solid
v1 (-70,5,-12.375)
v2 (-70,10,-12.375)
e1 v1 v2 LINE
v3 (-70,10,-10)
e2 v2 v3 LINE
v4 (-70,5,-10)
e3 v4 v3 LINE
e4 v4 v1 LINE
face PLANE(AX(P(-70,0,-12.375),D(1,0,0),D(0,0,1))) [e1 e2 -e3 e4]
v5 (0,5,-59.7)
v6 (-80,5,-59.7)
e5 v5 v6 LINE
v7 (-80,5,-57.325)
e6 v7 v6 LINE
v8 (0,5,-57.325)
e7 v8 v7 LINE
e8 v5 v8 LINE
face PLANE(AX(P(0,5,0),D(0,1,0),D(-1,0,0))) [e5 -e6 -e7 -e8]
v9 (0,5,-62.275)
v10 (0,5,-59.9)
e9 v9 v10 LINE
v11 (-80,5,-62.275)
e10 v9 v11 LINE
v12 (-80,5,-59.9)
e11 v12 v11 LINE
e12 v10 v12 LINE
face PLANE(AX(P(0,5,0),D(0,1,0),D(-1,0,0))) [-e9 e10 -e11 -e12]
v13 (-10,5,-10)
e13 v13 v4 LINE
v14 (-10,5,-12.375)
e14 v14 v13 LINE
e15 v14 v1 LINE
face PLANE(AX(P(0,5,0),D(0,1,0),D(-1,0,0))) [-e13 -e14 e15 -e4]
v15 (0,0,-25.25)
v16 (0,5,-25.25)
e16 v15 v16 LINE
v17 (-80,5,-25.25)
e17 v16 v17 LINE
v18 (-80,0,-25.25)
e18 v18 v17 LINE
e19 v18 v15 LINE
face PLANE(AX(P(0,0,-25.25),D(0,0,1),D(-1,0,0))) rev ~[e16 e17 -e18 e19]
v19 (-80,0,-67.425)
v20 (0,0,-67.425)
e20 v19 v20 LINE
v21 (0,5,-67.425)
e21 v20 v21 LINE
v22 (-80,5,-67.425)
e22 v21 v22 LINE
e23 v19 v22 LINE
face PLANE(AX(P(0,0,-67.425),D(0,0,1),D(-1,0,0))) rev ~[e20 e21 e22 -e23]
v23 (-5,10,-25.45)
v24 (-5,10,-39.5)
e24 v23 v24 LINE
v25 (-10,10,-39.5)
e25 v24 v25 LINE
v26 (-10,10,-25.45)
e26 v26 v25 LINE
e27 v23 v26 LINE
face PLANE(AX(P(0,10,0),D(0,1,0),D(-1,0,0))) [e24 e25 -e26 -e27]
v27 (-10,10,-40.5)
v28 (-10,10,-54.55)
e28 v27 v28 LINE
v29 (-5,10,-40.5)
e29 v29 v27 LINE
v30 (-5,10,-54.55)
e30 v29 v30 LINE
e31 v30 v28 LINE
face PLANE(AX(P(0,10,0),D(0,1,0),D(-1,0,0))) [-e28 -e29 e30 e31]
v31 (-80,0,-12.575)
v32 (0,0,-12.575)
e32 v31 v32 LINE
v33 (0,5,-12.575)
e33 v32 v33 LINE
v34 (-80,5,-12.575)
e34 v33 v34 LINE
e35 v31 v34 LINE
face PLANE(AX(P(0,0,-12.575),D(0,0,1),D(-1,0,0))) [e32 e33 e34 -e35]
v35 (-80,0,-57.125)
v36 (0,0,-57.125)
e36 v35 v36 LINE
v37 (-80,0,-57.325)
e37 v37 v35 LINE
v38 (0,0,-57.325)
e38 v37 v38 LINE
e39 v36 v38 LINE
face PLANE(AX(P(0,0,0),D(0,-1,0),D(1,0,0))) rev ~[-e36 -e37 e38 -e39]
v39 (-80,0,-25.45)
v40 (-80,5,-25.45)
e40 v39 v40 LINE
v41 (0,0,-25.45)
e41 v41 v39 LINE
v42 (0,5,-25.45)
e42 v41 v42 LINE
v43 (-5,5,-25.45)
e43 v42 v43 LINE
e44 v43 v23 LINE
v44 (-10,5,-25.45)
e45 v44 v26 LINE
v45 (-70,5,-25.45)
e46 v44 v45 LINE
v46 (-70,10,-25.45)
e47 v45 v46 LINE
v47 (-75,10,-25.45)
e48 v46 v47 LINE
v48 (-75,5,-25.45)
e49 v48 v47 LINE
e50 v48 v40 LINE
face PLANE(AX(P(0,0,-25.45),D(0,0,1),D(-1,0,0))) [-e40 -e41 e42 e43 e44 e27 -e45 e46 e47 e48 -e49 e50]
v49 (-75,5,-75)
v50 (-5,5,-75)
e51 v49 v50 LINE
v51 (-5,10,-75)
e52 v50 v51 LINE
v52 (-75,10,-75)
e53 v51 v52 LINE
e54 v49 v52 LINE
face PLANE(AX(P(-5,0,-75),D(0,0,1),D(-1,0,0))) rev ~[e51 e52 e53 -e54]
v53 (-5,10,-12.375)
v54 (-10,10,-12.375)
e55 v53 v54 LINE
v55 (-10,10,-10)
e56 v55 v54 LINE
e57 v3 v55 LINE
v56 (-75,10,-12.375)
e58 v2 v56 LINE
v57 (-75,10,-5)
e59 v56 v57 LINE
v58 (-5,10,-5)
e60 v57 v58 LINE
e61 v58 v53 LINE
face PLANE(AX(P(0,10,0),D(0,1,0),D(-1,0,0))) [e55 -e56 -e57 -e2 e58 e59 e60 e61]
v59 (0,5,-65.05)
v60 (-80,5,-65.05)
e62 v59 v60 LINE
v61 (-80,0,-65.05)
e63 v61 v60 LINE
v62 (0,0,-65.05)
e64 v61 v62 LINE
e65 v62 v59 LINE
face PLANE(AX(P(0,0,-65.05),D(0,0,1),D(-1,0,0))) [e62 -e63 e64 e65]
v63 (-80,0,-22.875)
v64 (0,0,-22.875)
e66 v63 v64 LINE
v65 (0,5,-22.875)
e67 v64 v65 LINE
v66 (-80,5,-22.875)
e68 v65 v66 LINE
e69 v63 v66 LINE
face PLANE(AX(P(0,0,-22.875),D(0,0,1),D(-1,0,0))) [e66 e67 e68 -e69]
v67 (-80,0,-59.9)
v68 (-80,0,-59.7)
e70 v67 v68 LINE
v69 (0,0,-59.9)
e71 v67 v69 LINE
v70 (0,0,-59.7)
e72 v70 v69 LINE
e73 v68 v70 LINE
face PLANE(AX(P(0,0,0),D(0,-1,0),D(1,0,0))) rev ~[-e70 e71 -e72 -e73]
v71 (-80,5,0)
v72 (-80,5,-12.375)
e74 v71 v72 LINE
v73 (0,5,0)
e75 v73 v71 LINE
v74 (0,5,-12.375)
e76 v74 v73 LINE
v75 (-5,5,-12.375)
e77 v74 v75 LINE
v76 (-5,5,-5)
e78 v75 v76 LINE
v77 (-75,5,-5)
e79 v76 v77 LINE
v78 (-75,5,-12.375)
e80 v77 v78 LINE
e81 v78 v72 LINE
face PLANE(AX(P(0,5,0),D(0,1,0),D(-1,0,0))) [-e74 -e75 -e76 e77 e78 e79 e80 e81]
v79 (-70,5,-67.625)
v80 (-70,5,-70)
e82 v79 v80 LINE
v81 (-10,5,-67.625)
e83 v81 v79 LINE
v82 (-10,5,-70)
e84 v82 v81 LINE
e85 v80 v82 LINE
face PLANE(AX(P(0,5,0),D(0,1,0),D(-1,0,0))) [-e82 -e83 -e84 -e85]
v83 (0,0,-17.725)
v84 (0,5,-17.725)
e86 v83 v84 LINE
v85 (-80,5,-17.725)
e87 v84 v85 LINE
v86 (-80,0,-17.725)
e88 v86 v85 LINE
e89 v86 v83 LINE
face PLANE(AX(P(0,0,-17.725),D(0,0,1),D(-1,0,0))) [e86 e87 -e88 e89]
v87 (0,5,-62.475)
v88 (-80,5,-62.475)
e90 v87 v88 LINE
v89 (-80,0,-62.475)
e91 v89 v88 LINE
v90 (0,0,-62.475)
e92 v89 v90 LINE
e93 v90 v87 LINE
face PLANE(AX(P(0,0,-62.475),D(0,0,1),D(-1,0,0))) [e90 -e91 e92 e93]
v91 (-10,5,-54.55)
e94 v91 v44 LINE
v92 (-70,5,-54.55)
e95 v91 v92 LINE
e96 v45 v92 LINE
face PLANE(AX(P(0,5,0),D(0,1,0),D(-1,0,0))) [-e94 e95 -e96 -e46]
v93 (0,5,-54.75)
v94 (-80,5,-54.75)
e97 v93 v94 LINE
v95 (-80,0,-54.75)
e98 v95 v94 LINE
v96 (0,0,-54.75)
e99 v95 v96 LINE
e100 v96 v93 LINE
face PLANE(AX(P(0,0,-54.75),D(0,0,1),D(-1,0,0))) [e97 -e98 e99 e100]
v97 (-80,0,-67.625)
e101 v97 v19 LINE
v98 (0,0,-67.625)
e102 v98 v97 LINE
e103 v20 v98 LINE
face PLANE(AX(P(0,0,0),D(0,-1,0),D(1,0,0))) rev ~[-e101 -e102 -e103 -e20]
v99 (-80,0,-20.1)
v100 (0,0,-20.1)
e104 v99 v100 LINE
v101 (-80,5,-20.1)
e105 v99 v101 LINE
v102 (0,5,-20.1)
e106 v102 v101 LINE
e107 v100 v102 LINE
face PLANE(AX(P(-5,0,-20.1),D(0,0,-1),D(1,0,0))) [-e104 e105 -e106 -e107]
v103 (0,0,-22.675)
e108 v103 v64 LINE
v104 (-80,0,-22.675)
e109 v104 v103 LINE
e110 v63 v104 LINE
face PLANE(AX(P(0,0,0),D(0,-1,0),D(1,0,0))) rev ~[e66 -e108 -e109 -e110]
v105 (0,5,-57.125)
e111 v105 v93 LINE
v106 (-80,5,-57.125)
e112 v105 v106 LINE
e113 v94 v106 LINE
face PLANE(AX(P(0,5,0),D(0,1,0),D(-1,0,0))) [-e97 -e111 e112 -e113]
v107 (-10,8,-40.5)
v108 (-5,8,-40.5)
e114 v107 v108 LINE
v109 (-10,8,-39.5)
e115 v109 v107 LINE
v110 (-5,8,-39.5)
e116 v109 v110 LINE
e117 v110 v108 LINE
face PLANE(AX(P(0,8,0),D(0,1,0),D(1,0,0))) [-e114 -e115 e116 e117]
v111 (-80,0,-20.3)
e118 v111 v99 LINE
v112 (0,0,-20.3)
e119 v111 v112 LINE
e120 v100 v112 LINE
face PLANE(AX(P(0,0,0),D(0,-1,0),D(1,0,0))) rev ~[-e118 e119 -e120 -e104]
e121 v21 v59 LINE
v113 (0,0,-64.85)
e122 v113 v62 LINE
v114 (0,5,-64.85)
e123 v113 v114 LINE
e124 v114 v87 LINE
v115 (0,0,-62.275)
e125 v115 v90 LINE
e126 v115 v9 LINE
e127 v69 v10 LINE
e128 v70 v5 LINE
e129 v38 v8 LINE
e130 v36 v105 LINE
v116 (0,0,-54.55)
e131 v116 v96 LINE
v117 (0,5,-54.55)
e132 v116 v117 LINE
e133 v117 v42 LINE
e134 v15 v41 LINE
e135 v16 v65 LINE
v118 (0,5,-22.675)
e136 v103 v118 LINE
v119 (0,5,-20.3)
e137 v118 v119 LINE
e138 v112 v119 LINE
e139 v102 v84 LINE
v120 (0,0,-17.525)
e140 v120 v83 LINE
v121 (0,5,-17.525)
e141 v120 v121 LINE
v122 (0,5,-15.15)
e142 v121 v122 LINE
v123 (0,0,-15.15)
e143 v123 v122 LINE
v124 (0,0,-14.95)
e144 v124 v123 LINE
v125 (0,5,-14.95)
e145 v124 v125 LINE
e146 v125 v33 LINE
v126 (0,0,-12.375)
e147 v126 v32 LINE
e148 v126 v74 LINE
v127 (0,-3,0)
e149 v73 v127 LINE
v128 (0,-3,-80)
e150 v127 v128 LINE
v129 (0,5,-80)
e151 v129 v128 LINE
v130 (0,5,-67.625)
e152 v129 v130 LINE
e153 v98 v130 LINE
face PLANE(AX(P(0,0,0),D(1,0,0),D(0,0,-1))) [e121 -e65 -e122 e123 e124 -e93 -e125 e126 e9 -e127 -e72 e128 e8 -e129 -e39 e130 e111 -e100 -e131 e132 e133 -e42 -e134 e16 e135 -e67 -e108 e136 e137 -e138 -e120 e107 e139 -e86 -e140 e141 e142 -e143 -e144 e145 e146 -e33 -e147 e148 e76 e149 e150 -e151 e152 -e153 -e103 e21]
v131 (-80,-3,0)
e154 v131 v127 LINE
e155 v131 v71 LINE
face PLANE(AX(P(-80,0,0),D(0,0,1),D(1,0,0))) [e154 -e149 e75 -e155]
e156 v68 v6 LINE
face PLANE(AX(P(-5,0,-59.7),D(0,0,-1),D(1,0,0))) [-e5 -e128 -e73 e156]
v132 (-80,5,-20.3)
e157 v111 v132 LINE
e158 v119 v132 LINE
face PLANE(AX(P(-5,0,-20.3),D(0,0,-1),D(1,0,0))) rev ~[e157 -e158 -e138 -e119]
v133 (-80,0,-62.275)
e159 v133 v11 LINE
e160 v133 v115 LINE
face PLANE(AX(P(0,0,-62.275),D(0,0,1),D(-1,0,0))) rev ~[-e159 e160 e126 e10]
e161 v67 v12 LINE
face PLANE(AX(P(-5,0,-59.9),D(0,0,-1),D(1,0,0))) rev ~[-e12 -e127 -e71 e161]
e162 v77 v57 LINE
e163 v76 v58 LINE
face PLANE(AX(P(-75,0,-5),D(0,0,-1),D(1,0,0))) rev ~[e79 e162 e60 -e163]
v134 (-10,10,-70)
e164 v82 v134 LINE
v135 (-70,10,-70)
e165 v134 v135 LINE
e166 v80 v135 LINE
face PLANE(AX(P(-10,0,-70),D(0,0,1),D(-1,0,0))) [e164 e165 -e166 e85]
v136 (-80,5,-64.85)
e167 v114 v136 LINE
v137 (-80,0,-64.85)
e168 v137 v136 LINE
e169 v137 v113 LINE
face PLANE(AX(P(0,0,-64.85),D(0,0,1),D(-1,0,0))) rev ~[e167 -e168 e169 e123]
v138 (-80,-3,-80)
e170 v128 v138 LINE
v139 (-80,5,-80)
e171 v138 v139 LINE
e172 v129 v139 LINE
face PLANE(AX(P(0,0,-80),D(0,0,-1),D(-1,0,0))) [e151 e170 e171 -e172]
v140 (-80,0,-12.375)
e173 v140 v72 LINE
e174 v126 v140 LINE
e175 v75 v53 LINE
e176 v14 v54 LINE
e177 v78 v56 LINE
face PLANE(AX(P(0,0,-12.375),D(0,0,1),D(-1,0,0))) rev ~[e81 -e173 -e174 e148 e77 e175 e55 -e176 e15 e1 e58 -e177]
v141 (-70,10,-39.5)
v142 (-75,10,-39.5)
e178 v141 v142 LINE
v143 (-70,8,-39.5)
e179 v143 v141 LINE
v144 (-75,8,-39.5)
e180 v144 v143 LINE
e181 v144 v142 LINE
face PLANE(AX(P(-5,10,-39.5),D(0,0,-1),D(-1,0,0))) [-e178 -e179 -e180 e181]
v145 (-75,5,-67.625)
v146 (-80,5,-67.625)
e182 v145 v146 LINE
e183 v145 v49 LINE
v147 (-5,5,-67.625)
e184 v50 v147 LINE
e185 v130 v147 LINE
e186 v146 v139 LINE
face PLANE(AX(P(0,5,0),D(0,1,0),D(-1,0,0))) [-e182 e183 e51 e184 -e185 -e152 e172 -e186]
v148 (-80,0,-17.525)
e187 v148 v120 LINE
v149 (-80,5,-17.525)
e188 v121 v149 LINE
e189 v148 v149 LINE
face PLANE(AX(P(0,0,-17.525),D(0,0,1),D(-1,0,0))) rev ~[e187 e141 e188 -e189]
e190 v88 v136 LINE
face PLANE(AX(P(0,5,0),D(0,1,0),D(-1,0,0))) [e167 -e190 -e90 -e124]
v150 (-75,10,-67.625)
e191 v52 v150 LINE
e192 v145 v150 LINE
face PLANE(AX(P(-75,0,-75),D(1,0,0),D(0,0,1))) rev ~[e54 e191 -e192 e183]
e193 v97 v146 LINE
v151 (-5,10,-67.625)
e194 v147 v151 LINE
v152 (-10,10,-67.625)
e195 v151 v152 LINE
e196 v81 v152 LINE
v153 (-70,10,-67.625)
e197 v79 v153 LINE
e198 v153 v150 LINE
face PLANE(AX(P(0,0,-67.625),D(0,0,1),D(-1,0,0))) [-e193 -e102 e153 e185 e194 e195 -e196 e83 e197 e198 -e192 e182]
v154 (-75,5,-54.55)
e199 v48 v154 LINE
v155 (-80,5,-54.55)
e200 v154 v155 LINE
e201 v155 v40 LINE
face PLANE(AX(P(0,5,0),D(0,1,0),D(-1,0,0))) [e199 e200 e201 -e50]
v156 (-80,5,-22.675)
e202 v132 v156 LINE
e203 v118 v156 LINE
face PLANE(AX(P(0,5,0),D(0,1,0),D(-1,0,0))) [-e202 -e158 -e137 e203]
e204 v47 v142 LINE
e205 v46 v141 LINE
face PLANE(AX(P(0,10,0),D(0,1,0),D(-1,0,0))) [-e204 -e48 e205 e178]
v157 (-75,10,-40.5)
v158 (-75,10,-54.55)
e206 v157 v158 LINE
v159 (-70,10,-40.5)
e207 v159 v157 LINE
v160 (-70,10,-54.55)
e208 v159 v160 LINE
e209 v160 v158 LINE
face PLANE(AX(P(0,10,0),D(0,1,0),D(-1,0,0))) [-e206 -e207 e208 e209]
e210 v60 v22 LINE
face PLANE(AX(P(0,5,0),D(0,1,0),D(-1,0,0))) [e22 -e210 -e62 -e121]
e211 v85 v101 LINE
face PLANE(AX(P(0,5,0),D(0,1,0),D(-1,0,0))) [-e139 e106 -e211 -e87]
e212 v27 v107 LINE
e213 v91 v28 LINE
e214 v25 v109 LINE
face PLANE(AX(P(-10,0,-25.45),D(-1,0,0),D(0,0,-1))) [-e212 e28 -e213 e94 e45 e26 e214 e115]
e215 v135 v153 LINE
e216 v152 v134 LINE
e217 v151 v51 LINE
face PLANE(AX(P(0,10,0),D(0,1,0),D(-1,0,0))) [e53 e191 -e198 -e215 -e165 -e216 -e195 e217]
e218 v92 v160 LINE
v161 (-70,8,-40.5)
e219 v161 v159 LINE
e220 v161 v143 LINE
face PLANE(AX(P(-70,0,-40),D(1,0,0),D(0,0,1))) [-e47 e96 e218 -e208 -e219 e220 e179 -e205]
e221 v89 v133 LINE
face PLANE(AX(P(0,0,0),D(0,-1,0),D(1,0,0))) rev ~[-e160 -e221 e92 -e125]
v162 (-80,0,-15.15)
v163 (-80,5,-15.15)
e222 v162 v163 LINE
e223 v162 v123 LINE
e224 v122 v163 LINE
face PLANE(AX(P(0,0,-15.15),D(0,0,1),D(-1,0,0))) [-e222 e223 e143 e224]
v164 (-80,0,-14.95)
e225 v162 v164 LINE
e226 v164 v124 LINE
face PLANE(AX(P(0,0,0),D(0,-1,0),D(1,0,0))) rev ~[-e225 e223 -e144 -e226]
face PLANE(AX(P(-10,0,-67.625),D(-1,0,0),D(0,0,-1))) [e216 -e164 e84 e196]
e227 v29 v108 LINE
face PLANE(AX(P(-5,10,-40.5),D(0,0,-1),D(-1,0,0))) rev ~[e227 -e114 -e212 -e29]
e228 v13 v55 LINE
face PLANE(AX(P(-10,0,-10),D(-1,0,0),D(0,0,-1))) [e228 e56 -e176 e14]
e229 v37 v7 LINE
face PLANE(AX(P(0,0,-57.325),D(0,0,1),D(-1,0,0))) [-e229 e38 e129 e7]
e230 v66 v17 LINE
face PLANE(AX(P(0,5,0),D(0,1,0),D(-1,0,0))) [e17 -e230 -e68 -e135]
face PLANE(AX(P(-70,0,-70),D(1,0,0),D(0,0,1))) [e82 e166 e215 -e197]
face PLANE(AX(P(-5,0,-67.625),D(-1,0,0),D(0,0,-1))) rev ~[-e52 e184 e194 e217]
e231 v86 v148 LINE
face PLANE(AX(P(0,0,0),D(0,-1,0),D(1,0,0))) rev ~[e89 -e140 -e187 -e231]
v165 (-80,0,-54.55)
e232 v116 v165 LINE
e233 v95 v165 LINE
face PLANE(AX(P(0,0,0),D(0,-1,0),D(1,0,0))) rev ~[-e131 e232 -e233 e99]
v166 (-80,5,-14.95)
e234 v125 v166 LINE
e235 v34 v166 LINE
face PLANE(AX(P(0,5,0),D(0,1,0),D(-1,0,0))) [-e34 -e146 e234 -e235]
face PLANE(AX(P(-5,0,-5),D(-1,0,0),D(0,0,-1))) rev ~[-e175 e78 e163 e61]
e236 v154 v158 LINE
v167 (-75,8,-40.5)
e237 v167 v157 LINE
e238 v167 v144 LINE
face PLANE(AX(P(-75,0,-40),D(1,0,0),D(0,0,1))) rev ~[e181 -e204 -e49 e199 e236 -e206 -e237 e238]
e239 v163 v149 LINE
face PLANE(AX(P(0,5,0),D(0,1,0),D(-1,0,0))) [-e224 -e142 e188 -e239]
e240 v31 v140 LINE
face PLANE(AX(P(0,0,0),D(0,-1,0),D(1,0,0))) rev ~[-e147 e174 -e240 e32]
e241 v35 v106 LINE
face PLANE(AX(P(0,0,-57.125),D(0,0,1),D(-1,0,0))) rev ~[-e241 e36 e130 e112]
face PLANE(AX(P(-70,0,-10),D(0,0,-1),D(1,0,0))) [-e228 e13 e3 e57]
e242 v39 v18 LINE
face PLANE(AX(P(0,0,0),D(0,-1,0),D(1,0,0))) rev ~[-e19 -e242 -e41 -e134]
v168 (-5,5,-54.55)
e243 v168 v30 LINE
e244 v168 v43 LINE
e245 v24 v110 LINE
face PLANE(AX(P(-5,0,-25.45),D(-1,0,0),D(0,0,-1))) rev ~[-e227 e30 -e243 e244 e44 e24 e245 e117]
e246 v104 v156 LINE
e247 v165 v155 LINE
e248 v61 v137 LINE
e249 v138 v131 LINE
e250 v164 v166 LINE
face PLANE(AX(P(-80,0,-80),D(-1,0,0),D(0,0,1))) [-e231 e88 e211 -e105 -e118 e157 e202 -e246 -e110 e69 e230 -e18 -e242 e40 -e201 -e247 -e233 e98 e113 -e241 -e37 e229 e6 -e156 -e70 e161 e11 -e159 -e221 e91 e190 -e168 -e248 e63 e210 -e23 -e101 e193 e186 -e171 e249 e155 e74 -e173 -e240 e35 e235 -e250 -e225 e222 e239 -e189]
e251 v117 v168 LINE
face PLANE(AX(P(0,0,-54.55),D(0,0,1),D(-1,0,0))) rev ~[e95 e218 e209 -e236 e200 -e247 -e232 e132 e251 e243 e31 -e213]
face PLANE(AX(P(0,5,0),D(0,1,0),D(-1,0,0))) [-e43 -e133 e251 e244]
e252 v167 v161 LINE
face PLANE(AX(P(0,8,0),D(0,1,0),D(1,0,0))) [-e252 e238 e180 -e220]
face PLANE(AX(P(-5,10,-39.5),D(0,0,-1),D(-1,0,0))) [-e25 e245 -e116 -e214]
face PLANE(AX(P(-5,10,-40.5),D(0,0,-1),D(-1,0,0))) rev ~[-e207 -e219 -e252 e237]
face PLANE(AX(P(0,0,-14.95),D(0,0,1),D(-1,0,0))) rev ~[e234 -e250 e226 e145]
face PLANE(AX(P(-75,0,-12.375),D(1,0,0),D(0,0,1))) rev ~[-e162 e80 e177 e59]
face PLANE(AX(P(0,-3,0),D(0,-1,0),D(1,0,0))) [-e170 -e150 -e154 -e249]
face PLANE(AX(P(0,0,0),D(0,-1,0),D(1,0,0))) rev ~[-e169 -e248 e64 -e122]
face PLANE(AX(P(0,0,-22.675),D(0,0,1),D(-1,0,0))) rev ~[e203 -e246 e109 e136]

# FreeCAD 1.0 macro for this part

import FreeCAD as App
import Part
import Sketcher

V = App.Vector
Q = App.Units.Quantity

doc = App.newDocument("Part")
params = doc.addObject("Spreadsheet::Sheet", "Params")
for row, (alias, value) in enumerate([
    ("sketch1_width", "80 mm"),
    ("sketch1_height", "29.1 mm"),
    ("pad1_length", "5 mm"),
    ("sketch2_width", "80 mm"),
    ("pad2_length", "3 mm"),
    ("sketch3_width", "5 mm"),
    ("sketch3_width2", "60 mm"),
    ("sketch3_height", "29.1 mm"),
    ("pad3_length", "10 mm"),
    ("sketch4_height", "1 mm"),
    ("pocket1_length", "2 mm"),
], start=1):
    params.set(f"A{row}", alias)
    params.set(f"B{row}", "=" + value)
    params.setAlias(f"B{row}", alias)

body = doc.addObject("PartDesign::Body", "Body")
body.AllowCompound = True

# Sketch on XZ plane
sketch1 = body.newObject("Sketcher::SketchObject", "Sketch")
sketch1.AttachmentSupport = (doc.getObject("XZ_Plane"), [""])
sketch1.MapMode = "FlatFace"
sketch1.addGeometry(Part.LineSegment(V(0, 0, 0), V(0, -12.4, 0)), False)
sketch1.addGeometry(Part.LineSegment(V(0, -12.4, 0), V(-80, -12.4, 0)), False)
sketch1.addGeometry(Part.LineSegment(V(-80, -12.4, 0), V(-80, 0, 0)), False)
sketch1.addGeometry(Part.LineSegment(V(-80, 0, 0), V(0, 0, 0)), False)
sketch1.addGeometry(Part.LineSegment(V(0, -12.6, 0), V(0, -14.9, 0)), False)
sketch1.addGeometry(Part.LineSegment(V(0, -14.9, 0), V(-80, -14.9, 0)), False)
sketch1.addGeometry(Part.LineSegment(V(-80, -14.9, 0), V(-80, -12.6, 0)), False)
sketch1.addGeometry(Part.LineSegment(V(-80, -12.6, 0), V(0, -12.6, 0)), False)
sketch1.addGeometry(Part.LineSegment(V(0, -15.2, 0), V(0, -17.5, 0)), False)
sketch1.addGeometry(Part.LineSegment(V(0, -17.5, 0), V(-80, -17.5, 0)), False)
sketch1.addGeometry(Part.LineSegment(V(-80, -17.5, 0), V(-80, -15.2, 0)), False)
sketch1.addGeometry(Part.LineSegment(V(-80, -15.2, 0), V(0, -15.2, 0)), False)
sketch1.addGeometry(Part.LineSegment(V(0, -17.7, 0), V(0, -20.1, 0)), False)
sketch1.addGeometry(Part.LineSegment(V(0, -20.1, 0), V(-80, -20.1, 0)), False)
sketch1.addGeometry(Part.LineSegment(V(-80, -20.1, 0), V(-80, -17.7, 0)), False)
sketch1.addGeometry(Part.LineSegment(V(-80, -17.7, 0), V(0, -17.7, 0)), False)
sketch1.addGeometry(Part.LineSegment(V(0, -20.3, 0), V(0, -22.7, 0)), False)
sketch1.addGeometry(Part.LineSegment(V(0, -22.7, 0), V(-80, -22.7, 0)), False)
sketch1.addGeometry(Part.LineSegment(V(-80, -22.7, 0), V(-80, -20.3, 0)), False)
sketch1.addGeometry(Part.LineSegment(V(-80, -20.3, 0), V(0, -20.3, 0)), False)
sketch1.addGeometry(Part.LineSegment(V(0, -22.9, 0), V(0, -25.2, 0)), False)
sketch1.addGeometry(Part.LineSegment(V(0, -25.2, 0), V(-80, -25.2, 0)), False)
sketch1.addGeometry(Part.LineSegment(V(-80, -25.2, 0), V(-80, -22.9, 0)), False)
sketch1.addGeometry(Part.LineSegment(V(-80, -22.9, 0), V(0, -22.9, 0)), False)
sketch1.addGeometry(Part.LineSegment(V(0, -25.4, 0), V(0, -54.5, 0)), False)
sketch1.addGeometry(Part.LineSegment(V(0, -54.5, 0), V(-80, -54.5, 0)), False)
sketch1.addGeometry(Part.LineSegment(V(-80, -54.5, 0), V(-80, -25.4, 0)), False)
sketch1.addGeometry(Part.LineSegment(V(-80, -25.4, 0), V(0, -25.4, 0)), False)
sketch1.addGeometry(Part.LineSegment(V(0, -54.8, 0), V(0, -57.1, 0)), False)
sketch1.addGeometry(Part.LineSegment(V(0, -57.1, 0), V(-80, -57.1, 0)), False)
sketch1.addGeometry(Part.LineSegment(V(-80, -57.1, 0), V(-80, -54.8, 0)), False)
sketch1.addGeometry(Part.LineSegment(V(-80, -54.8, 0), V(0, -54.8, 0)), False)
sketch1.addGeometry(Part.LineSegment(V(0, -57.3, 0), V(0, -59.7, 0)), False)
sketch1.addGeometry(Part.LineSegment(V(0, -59.7, 0), V(-80, -59.7, 0)), False)
sketch1.addGeometry(Part.LineSegment(V(-80, -59.7, 0), V(-80, -57.3, 0)), False)
sketch1.addGeometry(Part.LineSegment(V(-80, -57.3, 0), V(0, -57.3, 0)), False)
sketch1.addGeometry(Part.LineSegment(V(0, -59.9, 0), V(0, -62.3, 0)), False)
sketch1.addGeometry(Part.LineSegment(V(0, -62.3, 0), V(-80, -62.3, 0)), False)
sketch1.addGeometry(Part.LineSegment(V(-80, -62.3, 0), V(-80, -59.9, 0)), False)
sketch1.addGeometry(Part.LineSegment(V(-80, -59.9, 0), V(0, -59.9, 0)), False)
sketch1.addGeometry(Part.LineSegment(V(0, -62.5, 0), V(0, -64.8, 0)), False)
sketch1.addGeometry(Part.LineSegment(V(0, -64.8, 0), V(-80, -64.8, 0)), False)
sketch1.addGeometry(Part.LineSegment(V(-80, -64.8, 0), V(-80, -62.5, 0)), False)
sketch1.addGeometry(Part.LineSegment(V(-80, -62.5, 0), V(0, -62.5, 0)), False)
sketch1.addGeometry(Part.LineSegment(V(0, -65, 0), V(0, -67.4, 0)), False)
sketch1.addGeometry(Part.LineSegment(V(0, -67.4, 0), V(-80, -67.4, 0)), False)
sketch1.addGeometry(Part.LineSegment(V(-80, -67.4, 0), V(-80, -65, 0)), False)
sketch1.addGeometry(Part.LineSegment(V(-80, -65, 0), V(0, -65, 0)), False)
sketch1.addGeometry(Part.LineSegment(V(0, -67.6, 0), V(0, -80, 0)), False)
sketch1.addGeometry(Part.LineSegment(V(0, -80, 0), V(-80, -80, 0)), False)
sketch1.addGeometry(Part.LineSegment(V(-80, -80, 0), V(-80, -67.6, 0)), False)
sketch1.addGeometry(Part.LineSegment(V(-80, -67.6, 0), V(0, -67.6, 0)), False)
sketch1.addConstraint(Sketcher.Constraint("Coincident", 0, 2, 1, 1))
sketch1.addConstraint(Sketcher.Constraint("Coincident", 1, 2, 2, 1))
sketch1.addConstraint(Sketcher.Constraint("Coincident", 2, 2, 3, 1))
sketch1.addConstraint(Sketcher.Constraint("Coincident", 3, 2, 0, 1))
sketch1.addConstraint(Sketcher.Constraint("Coincident", 4, 2, 5, 1))
sketch1.addConstraint(Sketcher.Constraint("Coincident", 5, 2, 6, 1))
sketch1.addConstraint(Sketcher.Constraint("Coincident", 6, 2, 7, 1))
sketch1.addConstraint(Sketcher.Constraint("Coincident", 7, 2, 4, 1))
sketch1.addConstraint(Sketcher.Constraint("Coincident", 8, 2, 9, 1))
sketch1.addConstraint(Sketcher.Constraint("Coincident", 9, 2, 10, 1))
sketch1.addConstraint(Sketcher.Constraint("Coincident", 10, 2, 11, 1))
sketch1.addConstraint(Sketcher.Constraint("Coincident", 11, 2, 8, 1))
sketch1.addConstraint(Sketcher.Constraint("Coincident", 12, 2, 13, 1))
sketch1.addConstraint(Sketcher.Constraint("Coincident", 13, 2, 14, 1))
sketch1.addConstraint(Sketcher.Constraint("Coincident", 14, 2, 15, 1))
sketch1.addConstraint(Sketcher.Constraint("Coincident", 15, 2, 12, 1))
sketch1.addConstraint(Sketcher.Constraint("Coincident", 16, 2, 17, 1))
sketch1.addConstraint(Sketcher.Constraint("Coincident", 17, 2, 18, 1))
sketch1.addConstraint(Sketcher.Constraint("Coincident", 18, 2, 19, 1))
sketch1.addConstraint(Sketcher.Constraint("Coincident", 19, 2, 16, 1))
sketch1.addConstraint(Sketcher.Constraint("Coincident", 20, 2, 21, 1))
sketch1.addConstraint(Sketcher.Constraint("Coincident", 21, 2, 22, 1))
sketch1.addConstraint(Sketcher.Constraint("Coincident", 22, 2, 23, 1))
sketch1.addConstraint(Sketcher.Constraint("Coincident", 23, 2, 20, 1))
sketch1.addConstraint(Sketcher.Constraint("Coincident", 24, 2, 25, 1))
sketch1.addConstraint(Sketcher.Constraint("Coincident", 25, 2, 26, 1))
sketch1.addConstraint(Sketcher.Constraint("Coincident", 26, 2, 27, 1))
sketch1.addConstraint(Sketcher.Constraint("Coincident", 27, 2, 24, 1))
sketch1.addConstraint(Sketcher.Constraint("Coincident", 28, 2, 29, 1))
sketch1.addConstraint(Sketcher.Constraint("Coincident", 29, 2, 30, 1))
sketch1.addConstraint(Sketcher.Constraint("Coincident", 30, 2, 31, 1))
sketch1.addConstraint(Sketcher.Constraint("Coincident", 31, 2, 28, 1))
sketch1.addConstraint(Sketcher.Constraint("Coincident", 32, 2, 33, 1))
sketch1.addConstraint(Sketcher.Constraint("Coincident", 33, 2, 34, 1))
sketch1.addConstraint(Sketcher.Constraint("Coincident", 34, 2, 35, 1))
sketch1.addConstraint(Sketcher.Constraint("Coincident", 35, 2, 32, 1))
sketch1.addConstraint(Sketcher.Constraint("Coincident", 36, 2, 37, 1))
sketch1.addConstraint(Sketcher.Constraint("Coincident", 37, 2, 38, 1))
sketch1.addConstraint(Sketcher.Constraint("Coincident", 38, 2, 39, 1))
sketch1.addConstraint(Sketcher.Constraint("Coincident", 39, 2, 36, 1))
sketch1.addConstraint(Sketcher.Constraint("Coincident", 40, 2, 41, 1))
sketch1.addConstraint(Sketcher.Constraint("Coincident", 41, 2, 42, 1))
sketch1.addConstraint(Sketcher.Constraint("Coincident", 42, 2, 43, 1))
sketch1.addConstraint(Sketcher.Constraint("Coincident", 43, 2, 40, 1))
sketch1.addConstraint(Sketcher.Constraint("Coincident", 44, 2, 45, 1))
sketch1.addConstraint(Sketcher.Constraint("Coincident", 45, 2, 46, 1))
sketch1.addConstraint(Sketcher.Constraint("Coincident", 46, 2, 47, 1))
sketch1.addConstraint(Sketcher.Constraint("Coincident", 47, 2, 44, 1))
sketch1.addConstraint(Sketcher.Constraint("Coincident", 48, 2, 49, 1))
sketch1.addConstraint(Sketcher.Constraint("Coincident", 49, 2, 50, 1))
sketch1.addConstraint(Sketcher.Constraint("Coincident", 50, 2, 51, 1))
sketch1.addConstraint(Sketcher.Constraint("Coincident", 51, 2, 48, 1))
sketch1.addConstraint(Sketcher.Constraint("Vertical", 0))
sketch1.addConstraint(Sketcher.Constraint("Horizontal", 1))
sketch1.addConstraint(Sketcher.Constraint("Vertical", 2))
sketch1.addConstraint(Sketcher.Constraint("Horizontal", 3))
sketch1.addConstraint(Sketcher.Constraint("Vertical", 4))
sketch1.addConstraint(Sketcher.Constraint("Horizontal", 5))
sketch1.addConstraint(Sketcher.Constraint("Vertical", 6))
sketch1.addConstraint(Sketcher.Constraint("Horizontal", 7))
sketch1.addConstraint(Sketcher.Constraint("Vertical", 8))
sketch1.addConstraint(Sketcher.Constraint("Horizontal", 9))
sketch1.addConstraint(Sketcher.Constraint("Vertical", 10))
sketch1.addConstraint(Sketcher.Constraint("Horizontal", 11))
sketch1.addConstraint(Sketcher.Constraint("Vertical", 12))
sketch1.addConstraint(Sketcher.Constraint("Horizontal", 13))
sketch1.addConstraint(Sketcher.Constraint("Vertical", 14))
sketch1.addConstraint(Sketcher.Constraint("Horizontal", 15))
sketch1.addConstraint(Sketcher.Constraint("Vertical", 16))
sketch1.addConstraint(Sketcher.Constraint("Horizontal", 17))
sketch1.addConstraint(Sketcher.Constraint("Vertical", 18))
sketch1.addConstraint(Sketcher.Constraint("Horizontal", 19))
sketch1.addConstraint(Sketcher.Constraint("Vertical", 20))
sketch1.addConstraint(Sketcher.Constraint("Horizontal", 21))
sketch1.addConstraint(Sketcher.Constraint("Vertical", 22))
sketch1.addConstraint(Sketcher.Constraint("Horizontal", 23))
sketch1.addConstraint(Sketcher.Constraint("Vertical", 24))
sketch1.addConstraint(Sketcher.Constraint("Horizontal", 25))
sketch1.addConstraint(Sketcher.Constraint("Vertical", 26))
sketch1.addConstraint(Sketcher.Constraint("Horizontal", 27))
sketch1.addConstraint(Sketcher.Constraint("Vertical", 28))
sketch1.addConstraint(Sketcher.Constraint("Horizontal", 29))
sketch1.addConstraint(Sketcher.Constraint("Vertical", 30))
sketch1.addConstraint(Sketcher.Constraint("Horizontal", 31))
sketch1.addConstraint(Sketcher.Constraint("Vertical", 32))
sketch1.addConstraint(Sketcher.Constraint("Horizontal", 33))
sketch1.addConstraint(Sketcher.Constraint("Vertical", 34))
sketch1.addConstraint(Sketcher.Constraint("Horizontal", 35))
sketch1.addConstraint(Sketcher.Constraint("Vertical", 36))
sketch1.addConstraint(Sketcher.Constraint("Horizontal", 37))
sketch1.addConstraint(Sketcher.Constraint("Vertical", 38))
sketch1.addConstraint(Sketcher.Constraint("Horizontal", 39))
sketch1.addConstraint(Sketcher.Constraint("Vertical", 40))
sketch1.addConstraint(Sketcher.Constraint("Horizontal", 41))
sketch1.addConstraint(Sketcher.Constraint("Vertical", 42))
sketch1.addConstraint(Sketcher.Constraint("Horizontal", 43))
sketch1.addConstraint(Sketcher.Constraint("Vertical", 44))
sketch1.addConstraint(Sketcher.Constraint("Horizontal", 45))
sketch1.addConstraint(Sketcher.Constraint("Vertical", 46))
sketch1.addConstraint(Sketcher.Constraint("Horizontal", 47))
sketch1.addConstraint(Sketcher.Constraint("Vertical", 48))
sketch1.addConstraint(Sketcher.Constraint("Horizontal", 49))
sketch1.addConstraint(Sketcher.Constraint("Vertical", 50))
sketch1.addConstraint(Sketcher.Constraint("Horizontal", 51))
sketch1.addConstraint(Sketcher.Constraint("Coincident", 3, 2, -1, 1))
sketch1.addConstraint(Sketcher.Constraint("PointOnObject", 4, 2, -2))
sketch1.addConstraint(Sketcher.Constraint("PointOnObject", 8, 2, -2))
sketch1.addConstraint(Sketcher.Constraint("PointOnObject", 12, 2, -2))
sketch1.addConstraint(Sketcher.Constraint("PointOnObject", 16, 2, -2))
sketch1.addConstraint(Sketcher.Constraint("PointOnObject", 20, 2, -2))
sketch1.addConstraint(Sketcher.Constraint("PointOnObject", 24, 2, -2))
sketch1.addConstraint(Sketcher.Constraint("PointOnObject", 28, 2, -2))
sketch1.addConstraint(Sketcher.Constraint("PointOnObject", 32, 2, -2))
sketch1.addConstraint(Sketcher.Constraint("PointOnObject", 36, 2, -2))
sketch1.addConstraint(Sketcher.Constraint("PointOnObject", 40, 2, -2))
sketch1.addConstraint(Sketcher.Constraint("PointOnObject", 44, 2, -2))
sketch1.addConstraint(Sketcher.Constraint("PointOnObject", 48, 2, -2))
sketch1.addConstraint(Sketcher.Constraint("Vertical", 2, 2, 5, 2))
sketch1.addConstraint(Sketcher.Constraint("Vertical", 6, 2, 9, 2))
sketch1.addConstraint(Sketcher.Constraint("Vertical", 10, 2, 13, 2))
sketch1.addConstraint(Sketcher.Constraint("Vertical", 14, 2, 17, 2))
sketch1.addConstraint(Sketcher.Constraint("Vertical", 18, 2, 21, 2))
sketch1.addConstraint(Sketcher.Constraint("Vertical", 22, 2, 25, 2))
sketch1.addConstraint(Sketcher.Constraint("Vertical", 26, 2, 29, 2))
sketch1.addConstraint(Sketcher.Constraint("Vertical", 30, 2, 33, 2))
sketch1.addConstraint(Sketcher.Constraint("Vertical", 34, 2, 37, 2))
sketch1.addConstraint(Sketcher.Constraint("Vertical", 38, 2, 41, 2))
sketch1.addConstraint(Sketcher.Constraint("Vertical", 42, 2, 45, 2))
sketch1.addConstraint(Sketcher.Constraint("Vertical", 46, 2, 49, 2))
sketch1.addConstraint(Sketcher.Constraint("Equal", 6, 8))
sketch1.addConstraint(Sketcher.Constraint("Equal", 10, 12))
sketch1.addConstraint(Sketcher.Constraint("Equal", 14, 16))
sketch1.addConstraint(Sketcher.Constraint("Equal", 18, 20))
sketch1.addConstraint(Sketcher.Constraint("Equal", 22, 28))
sketch1.addConstraint(Sketcher.Constraint("Equal", 30, 32))
sketch1.addConstraint(Sketcher.Constraint("Equal", 34, 36))
sketch1.addConstraint(Sketcher.Constraint("Equal", 38, 40))
sketch1.addConstraint(Sketcher.Constraint("Equal", 42, 44))
sketch1.addConstraint(Sketcher.Constraint("Equal", 2, 48))
sketch1.addConstraint(Sketcher.Constraint("DistanceX", 1, 2, 1, 1, Q("80 mm")))
sketch1.addConstraint(Sketcher.Constraint("DistanceY", 48, 2, -1, 1, Q("80 mm")))
sketch1.addConstraint(Sketcher.Constraint("DistanceY", 6, 2, 1, 2, Q("0.2 mm")))
sketch1.addConstraint(Sketcher.Constraint("DistanceY", 10, 2, 5, 2, Q("0.2 mm")))
sketch1.addConstraint(Sketcher.Constraint("DistanceY", 14, 2, 9, 2, Q("0.2 mm")))
sketch1.addConstraint(Sketcher.Constraint("DistanceY", 18, 2, 13, 2, Q("0.2 mm")))
sketch1.addConstraint(Sketcher.Constraint("DistanceY", 22, 2, 17, 2, Q("0.2 mm")))
sketch1.addConstraint(Sketcher.Constraint("DistanceY", 26, 2, 21, 2, Q("0.2 mm")))
sketch1.addConstraint(Sketcher.Constraint("DistanceY", 30, 2, 25, 2, Q("0.2 mm")))
sketch1.addConstraint(Sketcher.Constraint("DistanceY", 34, 2, 29, 2, Q("0.2 mm")))
sketch1.addConstraint(Sketcher.Constraint("DistanceY", 38, 2, 33, 2, Q("0.2 mm")))
sketch1.addConstraint(Sketcher.Constraint("DistanceY", 42, 2, 37, 2, Q("0.2 mm")))
sketch1.addConstraint(Sketcher.Constraint("DistanceY", 46, 2, 41, 2, Q("0.2 mm")))
sketch1.addConstraint(Sketcher.Constraint("DistanceY", 50, 2, 45, 2, Q("0.2 mm")))
sketch1.addConstraint(Sketcher.Constraint("DistanceY", 4, 2, 4, 1, Q("2.375 mm")))
sketch1.addConstraint(Sketcher.Constraint("DistanceY", 24, 2, 24, 1, Q("29.1 mm")))
sketch1.setExpression("Constraints[139]", "Params.sketch1_width")
sketch1.setExpression("Constraints[154]", "Params.sketch1_height")
pad1 = body.newObject("PartDesign::Pad", "Pad")
pad1.Profile = sketch1
pad1.setExpression("Length", "Params.pad1_length")
pad1.Reversed = True

# Sketch on XZ plane
sketch2 = body.newObject("Sketcher::SketchObject", "Sketch001")
sketch2.AttachmentSupport = (doc.getObject("XZ_Plane"), [""])
sketch2.MapMode = "FlatFace"
sketch2.addGeometry(Part.LineSegment(V(-80, -80, 0), V(0, -80, 0)), False)
sketch2.addGeometry(Part.LineSegment(V(0, -80, 0), V(0, 0, 0)), False)
sketch2.addGeometry(Part.LineSegment(V(0, 0, 0), V(-80, 0, 0)), False)
sketch2.addGeometry(Part.LineSegment(V(-80, 0, 0), V(-80, -80, 0)), False)
sketch2.addConstraint(Sketcher.Constraint("Coincident", 0, 2, 1, 1))
sketch2.addConstraint(Sketcher.Constraint("Coincident", 1, 2, 2, 1))
sketch2.addConstraint(Sketcher.Constraint("Coincident", 2, 2, 3, 1))
sketch2.addConstraint(Sketcher.Constraint("Coincident", 3, 2, 0, 1))
sketch2.addConstraint(Sketcher.Constraint("Horizontal", 0))
sketch2.addConstraint(Sketcher.Constraint("Vertical", 1))
sketch2.addConstraint(Sketcher.Constraint("Horizontal", 2))
sketch2.addConstraint(Sketcher.Constraint("Vertical", 3))
sketch2.addConstraint(Sketcher.Constraint("Coincident", 1, 2, -1, 1))
sketch2.addConstraint(Sketcher.Constraint("Equal", 2, 1))
sketch2.addConstraint(Sketcher.Constraint("DistanceX", 0, 1, 0, 2, Q("80 mm")))
sketch2.setExpression("Constraints[10]", "Params.sketch2_width")
pad2 = body.newObject("PartDesign::Pad", "Pad001")
pad2.Profile = sketch2
pad2.setExpression("Length", "Params.pad2_length")

# Sketch on XZ plane
sketch3 = body.newObject("Sketcher::SketchObject", "Sketch002")
sketch3.AttachmentSupport = (doc.getObject("XZ_Plane"), [""])
sketch3.MapMode = "FlatFace"
sketch3.addGeometry(Part.LineSegment(V(-5, -5, 0), V(-5, -12.4, 0)), False)
sketch3.addGeometry(Part.LineSegment(V(-5, -12.4, 0), V(-10, -12.4, 0)), False)
sketch3.addGeometry(Part.LineSegment(V(-10, -12.4, 0), V(-10, -10, 0)), False)
sketch3.addGeometry(Part.LineSegment(V(-10, -10, 0), V(-70, -10, 0)), False)
sketch3.addGeometry(Part.LineSegment(V(-70, -10, 0), V(-70, -12.4, 0)), False)
sketch3.addGeometry(Part.LineSegment(V(-70, -12.4, 0), V(-75, -12.4, 0)), False)
sketch3.addGeometry(Part.LineSegment(V(-75, -12.4, 0), V(-75, -5, 0)), False)
sketch3.addGeometry(Part.LineSegment(V(-75, -5, 0), V(-5, -5, 0)), False)
sketch3.addGeometry(Part.LineSegment(V(-10, -25.4, 0), V(-5, -25.4, 0)), False)
sketch3.addGeometry(Part.LineSegment(V(-5, -25.4, 0), V(-5, -54.5, 0)), False)
sketch3.addGeometry(Part.LineSegment(V(-5, -54.5, 0), V(-10, -54.5, 0)), False)
sketch3.addGeometry(Part.LineSegment(V(-10, -54.5, 0), V(-10, -25.4, 0)), False)
sketch3.addGeometry(Part.LineSegment(V(-75, -25.4, 0), V(-70, -25.4, 0)), False)
sketch3.addGeometry(Part.LineSegment(V(-70, -25.4, 0), V(-70, -54.5, 0)), False)
sketch3.addGeometry(Part.LineSegment(V(-70, -54.5, 0), V(-75, -54.5, 0)), False)
sketch3.addGeometry(Part.LineSegment(V(-75, -54.5, 0), V(-75, -25.4, 0)), False)
sketch3.addGeometry(Part.LineSegment(V(-10, -67.6, 0), V(-5, -67.6, 0)), False)
sketch3.addGeometry(Part.LineSegment(V(-5, -67.6, 0), V(-5, -75, 0)), False)
sketch3.addGeometry(Part.LineSegment(V(-5, -75, 0), V(-75, -75, 0)), False)
sketch3.addGeometry(Part.LineSegment(V(-75, -75, 0), V(-75, -67.6, 0)), False)
sketch3.addGeometry(Part.LineSegment(V(-75, -67.6, 0), V(-70, -67.6, 0)), False)
sketch3.addGeometry(Part.LineSegment(V(-70, -67.6, 0), V(-70, -70, 0)), False)
sketch3.addGeometry(Part.LineSegment(V(-70, -70, 0), V(-10, -70, 0)), False)
sketch3.addGeometry(Part.LineSegment(V(-10, -70, 0), V(-10, -67.6, 0)), False)
sketch3.addConstraint(Sketcher.Constraint("Coincident", 0, 2, 1, 1))
sketch3.addConstraint(Sketcher.Constraint("Coincident", 1, 2, 2, 1))
sketch3.addConstraint(Sketcher.Constraint("Coincident", 2, 2, 3, 1))
sketch3.addConstraint(Sketcher.Constraint("Coincident", 3, 2, 4, 1))
sketch3.addConstraint(Sketcher.Constraint("Coincident", 4, 2, 5, 1))
sketch3.addConstraint(Sketcher.Constraint("Coincident", 5, 2, 6, 1))
sketch3.addConstraint(Sketcher.Constraint("Coincident", 6, 2, 7, 1))
sketch3.addConstraint(Sketcher.Constraint("Coincident", 7, 2, 0, 1))
sketch3.addConstraint(Sketcher.Constraint("Coincident", 8, 2, 9, 1))
sketch3.addConstraint(Sketcher.Constraint("Coincident", 9, 2, 10, 1))
sketch3.addConstraint(Sketcher.Constraint("Coincident", 10, 2, 11, 1))
sketch3.addConstraint(Sketcher.Constraint("Coincident", 11, 2, 8, 1))
sketch3.addConstraint(Sketcher.Constraint("Coincident", 12, 2, 13, 1))
sketch3.addConstraint(Sketcher.Constraint("Coincident", 13, 2, 14, 1))
sketch3.addConstraint(Sketcher.Constraint("Coincident", 14, 2, 15, 1))
sketch3.addConstraint(Sketcher.Constraint("Coincident", 15, 2, 12, 1))
sketch3.addConstraint(Sketcher.Constraint("Coincident", 16, 2, 17, 1))
sketch3.addConstraint(Sketcher.Constraint("Coincident", 17, 2, 18, 1))
sketch3.addConstraint(Sketcher.Constraint("Coincident", 18, 2, 19, 1))
sketch3.addConstraint(Sketcher.Constraint("Coincident", 19, 2, 20, 1))
sketch3.addConstraint(Sketcher.Constraint("Coincident", 20, 2, 21, 1))
sketch3.addConstraint(Sketcher.Constraint("Coincident", 21, 2, 22, 1))
sketch3.addConstraint(Sketcher.Constraint("Coincident", 22, 2, 23, 1))
sketch3.addConstraint(Sketcher.Constraint("Coincident", 23, 2, 16, 1))
sketch3.addConstraint(Sketcher.Constraint("Vertical", 0))
sketch3.addConstraint(Sketcher.Constraint("Horizontal", 1))
sketch3.addConstraint(Sketcher.Constraint("Vertical", 2))
sketch3.addConstraint(Sketcher.Constraint("Horizontal", 3))
sketch3.addConstraint(Sketcher.Constraint("Vertical", 4))
sketch3.addConstraint(Sketcher.Constraint("Horizontal", 5))
sketch3.addConstraint(Sketcher.Constraint("Vertical", 6))
sketch3.addConstraint(Sketcher.Constraint("Horizontal", 7))
sketch3.addConstraint(Sketcher.Constraint("Horizontal", 8))
sketch3.addConstraint(Sketcher.Constraint("Vertical", 9))
sketch3.addConstraint(Sketcher.Constraint("Horizontal", 10))
sketch3.addConstraint(Sketcher.Constraint("Vertical", 11))
sketch3.addConstraint(Sketcher.Constraint("Horizontal", 12))
sketch3.addConstraint(Sketcher.Constraint("Vertical", 13))
sketch3.addConstraint(Sketcher.Constraint("Horizontal", 14))
sketch3.addConstraint(Sketcher.Constraint("Vertical", 15))
sketch3.addConstraint(Sketcher.Constraint("Horizontal", 16))
sketch3.addConstraint(Sketcher.Constraint("Vertical", 17))
sketch3.addConstraint(Sketcher.Constraint("Horizontal", 18))
sketch3.addConstraint(Sketcher.Constraint("Vertical", 19))
sketch3.addConstraint(Sketcher.Constraint("Horizontal", 20))
sketch3.addConstraint(Sketcher.Constraint("Vertical", 21))
sketch3.addConstraint(Sketcher.Constraint("Horizontal", 22))
sketch3.addConstraint(Sketcher.Constraint("Vertical", 23))
sketch3.addConstraint(Sketcher.Constraint("Horizontal", 1, 2, 4, 2))
sketch3.addConstraint(Sketcher.Constraint("Horizontal", 11, 2, 12, 2))
sketch3.addConstraint(Sketcher.Constraint("Horizontal", 10, 2, 13, 2))
sketch3.addConstraint(Sketcher.Constraint("Horizontal", 16, 2, 19, 2))
sketch3.addConstraint(Sketcher.Constraint("Vertical", 7, 2, 8, 2))
sketch3.addConstraint(Sketcher.Constraint("Vertical", 2, 2, 10, 2))
sketch3.addConstraint(Sketcher.Constraint("Vertical", 4, 2, 12, 2))
sketch3.addConstraint(Sketcher.Constraint("Vertical", 6, 2, 14, 2))
sketch3.addConstraint(Sketcher.Constraint("Vertical", 9, 2, 16, 2))
sketch3.addConstraint(Sketcher.Constraint("Vertical", 15, 2, 18, 2))
sketch3.addConstraint(Sketcher.Constraint("Vertical", 13, 2, 20, 2))
sketch3.addConstraint(Sketcher.Constraint("Vertical", 11, 2, 22, 2))
sketch3.addConstraint(Sketcher.Constraint("Equal", 1, 5))
sketch3.addConstraint(Sketcher.Constraint("Equal", 6, 17))
sketch3.addConstraint(Sketcher.Constraint("Equal", 4, 21))
sketch3.addConstraint(Sketcher.Constraint("DistanceX", 1, 2, 1, 1, Q("5 mm")))
sketch3.addConstraint(Sketcher.Constraint("DistanceX", 3, 2, 3, 1, Q("60 mm")))
sketch3.addConstraint(Sketcher.Constraint("DistanceX", 0, 2, -1, 1, Q("5 mm")))
sketch3.addConstraint(Sketcher.Constraint("DistanceY", 2, 2, -1, 1, Q("10 mm")))
sketch3.addConstraint(Sketcher.Constraint("DistanceY", 6, 2, -1, 1, Q("5 mm")))
sketch3.addConstraint(Sketcher.Constraint("DistanceY", 2, 1, 2, 2, Q("2.375 mm")))
sketch3.addConstraint(Sketcher.Constraint("DistanceY", 9, 2, 9, 1, Q("29.1 mm")))
sketch3.addConstraint(Sketcher.Constraint("DistanceY", 17, 2, -1, 1, Q("75 mm")))
sketch3.addConstraint(Sketcher.Constraint("DistanceY", 8, 2, -1, 1, Q("25.45 mm")))
sketch3.setExpression("Constraints[63]", "Params.sketch3_width")
sketch3.setExpression("Constraints[64]", "Params.sketch3_width2")
sketch3.setExpression("Constraints[69]", "Params.sketch3_height")
pad3 = body.newObject("PartDesign::Pad", "Pad002")
pad3.Profile = sketch3
pad3.setExpression("Length", "Params.pad3_length")
pad3.Reversed = True

# Sketch on XZ plane
sketch4 = body.newObject("Sketcher::SketchObject", "Sketch003")
sketch4.AttachmentSupport = (doc.getObject("XZ_Plane"), [""])
sketch4.MapMode = "FlatFace"
sketch4.AttachmentOffset = App.Placement(V(0, 0, -10), App.Rotation())
sketch4.addGeometry(Part.LineSegment(V(-5, -39.5, 0), V(-5, -40.5, 0)), False)
sketch4.addGeometry(Part.LineSegment(V(-5, -40.5, 0), V(-84.2, -40.5, 0)), False)
sketch4.addGeometry(Part.LineSegment(V(-84.2, -40.5, 0), V(-84.2, -39.5, 0)), False)
sketch4.addGeometry(Part.LineSegment(V(-84.2, -39.5, 0), V(-5, -39.5, 0)), False)
sketch4.addConstraint(Sketcher.Constraint("Coincident", 0, 2, 1, 1))
sketch4.addConstraint(Sketcher.Constraint("Coincident", 1, 2, 2, 1))
sketch4.addConstraint(Sketcher.Constraint("Coincident", 2, 2, 3, 1))
sketch4.addConstraint(Sketcher.Constraint("Coincident", 3, 2, 0, 1))
sketch4.addConstraint(Sketcher.Constraint("Vertical", 0))
sketch4.addConstraint(Sketcher.Constraint("Horizontal", 1))
sketch4.addConstraint(Sketcher.Constraint("Vertical", 2))
sketch4.addConstraint(Sketcher.Constraint("Horizontal", 3))
sketch4.addConstraint(Sketcher.Constraint("DistanceY", 0, 2, 0, 1, Q("1 mm")))
sketch4.addConstraint(Sketcher.Constraint("DistanceX", 0, 2, -1, 1, Q("5 mm")))
sketch4.addConstraint(Sketcher.Constraint("DistanceY", 0, 2, -1, 1, Q("40.5 mm")))
sketch4.addConstraint(Sketcher.Constraint("DistanceX", 1, 2, 1, 1, Q("79.1767 mm")))
sketch4.setExpression("Constraints[8]", "Params.sketch4_height")
pocket1 = body.newObject("PartDesign::Pocket", "Pocket")
pocket1.Profile = sketch4
pocket1.setExpression("Length", "Params.pocket1_length")
pocket1.Reversed = True

doc.recompute()
